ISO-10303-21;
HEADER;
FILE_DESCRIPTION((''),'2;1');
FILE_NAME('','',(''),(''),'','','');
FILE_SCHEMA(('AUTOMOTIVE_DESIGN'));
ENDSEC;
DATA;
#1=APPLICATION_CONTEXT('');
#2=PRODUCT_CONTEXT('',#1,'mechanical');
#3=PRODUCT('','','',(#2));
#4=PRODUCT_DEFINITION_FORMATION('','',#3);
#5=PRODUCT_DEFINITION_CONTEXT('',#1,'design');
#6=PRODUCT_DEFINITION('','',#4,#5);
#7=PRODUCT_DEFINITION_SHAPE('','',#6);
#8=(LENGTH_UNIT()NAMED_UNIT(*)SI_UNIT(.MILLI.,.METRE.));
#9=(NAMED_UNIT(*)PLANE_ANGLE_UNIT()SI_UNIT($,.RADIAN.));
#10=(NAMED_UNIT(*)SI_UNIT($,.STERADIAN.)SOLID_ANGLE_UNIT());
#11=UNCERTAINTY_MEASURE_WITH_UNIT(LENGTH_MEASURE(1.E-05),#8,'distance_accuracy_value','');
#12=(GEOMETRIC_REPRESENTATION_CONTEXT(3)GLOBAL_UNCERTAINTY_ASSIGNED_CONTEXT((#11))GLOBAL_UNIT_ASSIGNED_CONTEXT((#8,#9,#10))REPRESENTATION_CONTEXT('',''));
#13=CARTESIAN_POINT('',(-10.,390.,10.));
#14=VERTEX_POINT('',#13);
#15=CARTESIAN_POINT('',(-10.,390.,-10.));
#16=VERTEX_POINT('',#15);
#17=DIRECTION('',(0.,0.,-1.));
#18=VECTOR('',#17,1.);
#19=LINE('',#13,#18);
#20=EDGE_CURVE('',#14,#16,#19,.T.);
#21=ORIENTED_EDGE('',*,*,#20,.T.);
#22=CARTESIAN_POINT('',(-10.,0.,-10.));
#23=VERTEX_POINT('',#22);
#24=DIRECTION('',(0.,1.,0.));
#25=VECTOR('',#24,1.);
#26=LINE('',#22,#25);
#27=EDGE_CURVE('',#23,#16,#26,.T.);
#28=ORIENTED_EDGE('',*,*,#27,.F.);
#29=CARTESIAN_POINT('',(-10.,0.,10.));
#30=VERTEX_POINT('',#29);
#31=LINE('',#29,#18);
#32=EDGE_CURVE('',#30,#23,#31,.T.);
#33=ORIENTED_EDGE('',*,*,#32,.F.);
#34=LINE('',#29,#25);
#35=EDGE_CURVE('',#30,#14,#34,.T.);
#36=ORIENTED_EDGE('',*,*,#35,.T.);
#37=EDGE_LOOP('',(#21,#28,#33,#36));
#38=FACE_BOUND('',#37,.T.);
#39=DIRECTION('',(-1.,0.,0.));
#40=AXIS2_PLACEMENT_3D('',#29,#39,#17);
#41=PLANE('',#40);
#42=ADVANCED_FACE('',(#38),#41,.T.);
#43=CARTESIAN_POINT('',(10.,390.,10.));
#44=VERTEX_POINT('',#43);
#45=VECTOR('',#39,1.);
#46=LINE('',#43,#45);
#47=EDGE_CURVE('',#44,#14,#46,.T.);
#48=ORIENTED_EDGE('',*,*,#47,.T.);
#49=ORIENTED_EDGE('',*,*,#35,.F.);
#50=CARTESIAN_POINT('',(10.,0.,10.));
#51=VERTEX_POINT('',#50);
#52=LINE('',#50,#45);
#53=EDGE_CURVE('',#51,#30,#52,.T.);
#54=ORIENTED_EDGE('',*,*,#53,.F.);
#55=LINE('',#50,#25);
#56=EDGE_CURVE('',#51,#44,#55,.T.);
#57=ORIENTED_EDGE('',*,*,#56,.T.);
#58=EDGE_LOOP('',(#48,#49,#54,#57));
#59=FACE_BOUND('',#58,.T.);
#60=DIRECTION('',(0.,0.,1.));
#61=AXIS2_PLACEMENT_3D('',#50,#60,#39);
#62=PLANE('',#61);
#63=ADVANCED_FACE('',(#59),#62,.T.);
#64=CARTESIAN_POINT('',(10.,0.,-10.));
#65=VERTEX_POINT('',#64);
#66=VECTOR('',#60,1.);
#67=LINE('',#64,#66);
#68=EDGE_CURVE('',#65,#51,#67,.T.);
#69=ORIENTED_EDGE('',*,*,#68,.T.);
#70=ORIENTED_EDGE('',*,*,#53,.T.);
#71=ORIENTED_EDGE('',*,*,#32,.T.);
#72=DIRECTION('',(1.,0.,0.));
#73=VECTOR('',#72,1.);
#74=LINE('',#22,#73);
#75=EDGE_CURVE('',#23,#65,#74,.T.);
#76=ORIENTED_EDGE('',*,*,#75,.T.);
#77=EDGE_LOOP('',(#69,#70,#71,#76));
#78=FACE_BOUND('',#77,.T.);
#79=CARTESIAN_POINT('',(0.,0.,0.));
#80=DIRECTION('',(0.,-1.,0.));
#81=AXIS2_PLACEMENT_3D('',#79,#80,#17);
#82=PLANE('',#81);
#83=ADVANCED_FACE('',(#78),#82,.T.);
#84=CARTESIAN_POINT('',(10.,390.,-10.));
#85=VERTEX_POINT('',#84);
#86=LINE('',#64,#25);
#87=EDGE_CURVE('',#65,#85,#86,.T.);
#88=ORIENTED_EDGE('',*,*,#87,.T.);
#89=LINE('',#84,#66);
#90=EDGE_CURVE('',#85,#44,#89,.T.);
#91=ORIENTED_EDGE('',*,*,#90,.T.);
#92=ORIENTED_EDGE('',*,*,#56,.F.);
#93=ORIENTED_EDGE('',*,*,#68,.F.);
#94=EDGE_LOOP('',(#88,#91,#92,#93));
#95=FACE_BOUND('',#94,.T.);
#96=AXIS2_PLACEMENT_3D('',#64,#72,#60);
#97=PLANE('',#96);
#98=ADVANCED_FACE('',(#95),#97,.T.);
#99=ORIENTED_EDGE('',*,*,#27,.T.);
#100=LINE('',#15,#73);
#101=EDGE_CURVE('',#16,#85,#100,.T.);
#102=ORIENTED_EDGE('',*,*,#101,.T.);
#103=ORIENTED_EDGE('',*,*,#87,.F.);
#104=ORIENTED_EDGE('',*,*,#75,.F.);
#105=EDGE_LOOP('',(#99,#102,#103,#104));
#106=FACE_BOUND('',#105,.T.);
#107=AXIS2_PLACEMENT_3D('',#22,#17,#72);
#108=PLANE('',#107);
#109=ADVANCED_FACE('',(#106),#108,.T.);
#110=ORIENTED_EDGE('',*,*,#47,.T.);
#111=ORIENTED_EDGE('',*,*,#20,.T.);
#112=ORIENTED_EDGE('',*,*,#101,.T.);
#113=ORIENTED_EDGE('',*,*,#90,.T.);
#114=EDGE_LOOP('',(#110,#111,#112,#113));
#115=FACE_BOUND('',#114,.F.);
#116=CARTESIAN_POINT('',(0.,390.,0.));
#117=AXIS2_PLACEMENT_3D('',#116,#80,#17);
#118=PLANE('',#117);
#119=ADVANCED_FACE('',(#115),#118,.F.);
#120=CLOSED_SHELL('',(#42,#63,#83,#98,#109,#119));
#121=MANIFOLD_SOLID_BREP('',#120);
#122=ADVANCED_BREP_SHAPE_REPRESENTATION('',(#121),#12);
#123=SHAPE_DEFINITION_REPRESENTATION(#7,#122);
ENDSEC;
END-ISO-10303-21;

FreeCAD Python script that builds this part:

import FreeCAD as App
import Part
import Sketcher
from FreeCAD import Vector

doc = App.newDocument("Part")
params = doc.addObject("Spreadsheet::Sheet", "Params")
for row, (alias, value) in enumerate([
    ("sketch1_width", "20 mm"),
    ("pad1_length", "390 mm"),
], start=1):
    params.set(f"A{row}", alias)
    params.set(f"B{row}", "=" + value)
    params.setAlias(f"B{row}", alias)

body = doc.addObject("PartDesign::Body", "Body")

# Sketch on XZ plane
sketch1 = body.newObject("Sketcher::SketchObject", "Sketch")
sketch1.AttachmentSupport = (doc.getObject("XZ_Plane"), [""])
sketch1.MapMode = "FlatFace"
sketch1.addGeometry(Part.LineSegment(Vector(-10, -10, 0), Vector(10, -10, 0)), False)
sketch1.addGeometry(Part.LineSegment(Vector(10, -10, 0), Vector(10, 10, 0)), False)
sketch1.addGeometry(Part.LineSegment(Vector(10, 10, 0), Vector(-10, 10, 0)), False)
sketch1.addGeometry(Part.LineSegment(Vector(-10, 10, 0), Vector(-10, -10, 0)), False)
sketch1.addConstraint(Sketcher.Constraint("Coincident", 0, 2, 1, 1))
sketch1.addConstraint(Sketcher.Constraint("Coincident", 1, 2, 2, 1))
sketch1.addConstraint(Sketcher.Constraint("Coincident", 2, 2, 3, 1))
sketch1.addConstraint(Sketcher.Constraint("Coincident", 3, 2, 0, 1))
sketch1.addConstraint(Sketcher.Constraint("Horizontal", 0))
sketch1.addConstraint(Sketcher.Constraint("Vertical", 1))
sketch1.addConstraint(Sketcher.Constraint("Horizontal", 2))
sketch1.addConstraint(Sketcher.Constraint("Vertical", 3))
sketch1.addConstraint(Sketcher.Constraint("Symmetric", 0, 2, 2, 2, -1, 1))
sketch1.addConstraint(Sketcher.Constraint("Equal", 2, 1))
sketch1.addConstraint(Sketcher.Constraint("DistanceX", 0, 1, 0, 2, 20.0))
sketch1.setExpression("Constraints[10]", "Params.sketch1_width")
pad1 = body.newObject("PartDesign::Pad", "Pad")
pad1.Profile = sketch1
pad1.setExpression("Length", "Params.pad1_length")
pad1.Reversed = True

doc.recompute()
